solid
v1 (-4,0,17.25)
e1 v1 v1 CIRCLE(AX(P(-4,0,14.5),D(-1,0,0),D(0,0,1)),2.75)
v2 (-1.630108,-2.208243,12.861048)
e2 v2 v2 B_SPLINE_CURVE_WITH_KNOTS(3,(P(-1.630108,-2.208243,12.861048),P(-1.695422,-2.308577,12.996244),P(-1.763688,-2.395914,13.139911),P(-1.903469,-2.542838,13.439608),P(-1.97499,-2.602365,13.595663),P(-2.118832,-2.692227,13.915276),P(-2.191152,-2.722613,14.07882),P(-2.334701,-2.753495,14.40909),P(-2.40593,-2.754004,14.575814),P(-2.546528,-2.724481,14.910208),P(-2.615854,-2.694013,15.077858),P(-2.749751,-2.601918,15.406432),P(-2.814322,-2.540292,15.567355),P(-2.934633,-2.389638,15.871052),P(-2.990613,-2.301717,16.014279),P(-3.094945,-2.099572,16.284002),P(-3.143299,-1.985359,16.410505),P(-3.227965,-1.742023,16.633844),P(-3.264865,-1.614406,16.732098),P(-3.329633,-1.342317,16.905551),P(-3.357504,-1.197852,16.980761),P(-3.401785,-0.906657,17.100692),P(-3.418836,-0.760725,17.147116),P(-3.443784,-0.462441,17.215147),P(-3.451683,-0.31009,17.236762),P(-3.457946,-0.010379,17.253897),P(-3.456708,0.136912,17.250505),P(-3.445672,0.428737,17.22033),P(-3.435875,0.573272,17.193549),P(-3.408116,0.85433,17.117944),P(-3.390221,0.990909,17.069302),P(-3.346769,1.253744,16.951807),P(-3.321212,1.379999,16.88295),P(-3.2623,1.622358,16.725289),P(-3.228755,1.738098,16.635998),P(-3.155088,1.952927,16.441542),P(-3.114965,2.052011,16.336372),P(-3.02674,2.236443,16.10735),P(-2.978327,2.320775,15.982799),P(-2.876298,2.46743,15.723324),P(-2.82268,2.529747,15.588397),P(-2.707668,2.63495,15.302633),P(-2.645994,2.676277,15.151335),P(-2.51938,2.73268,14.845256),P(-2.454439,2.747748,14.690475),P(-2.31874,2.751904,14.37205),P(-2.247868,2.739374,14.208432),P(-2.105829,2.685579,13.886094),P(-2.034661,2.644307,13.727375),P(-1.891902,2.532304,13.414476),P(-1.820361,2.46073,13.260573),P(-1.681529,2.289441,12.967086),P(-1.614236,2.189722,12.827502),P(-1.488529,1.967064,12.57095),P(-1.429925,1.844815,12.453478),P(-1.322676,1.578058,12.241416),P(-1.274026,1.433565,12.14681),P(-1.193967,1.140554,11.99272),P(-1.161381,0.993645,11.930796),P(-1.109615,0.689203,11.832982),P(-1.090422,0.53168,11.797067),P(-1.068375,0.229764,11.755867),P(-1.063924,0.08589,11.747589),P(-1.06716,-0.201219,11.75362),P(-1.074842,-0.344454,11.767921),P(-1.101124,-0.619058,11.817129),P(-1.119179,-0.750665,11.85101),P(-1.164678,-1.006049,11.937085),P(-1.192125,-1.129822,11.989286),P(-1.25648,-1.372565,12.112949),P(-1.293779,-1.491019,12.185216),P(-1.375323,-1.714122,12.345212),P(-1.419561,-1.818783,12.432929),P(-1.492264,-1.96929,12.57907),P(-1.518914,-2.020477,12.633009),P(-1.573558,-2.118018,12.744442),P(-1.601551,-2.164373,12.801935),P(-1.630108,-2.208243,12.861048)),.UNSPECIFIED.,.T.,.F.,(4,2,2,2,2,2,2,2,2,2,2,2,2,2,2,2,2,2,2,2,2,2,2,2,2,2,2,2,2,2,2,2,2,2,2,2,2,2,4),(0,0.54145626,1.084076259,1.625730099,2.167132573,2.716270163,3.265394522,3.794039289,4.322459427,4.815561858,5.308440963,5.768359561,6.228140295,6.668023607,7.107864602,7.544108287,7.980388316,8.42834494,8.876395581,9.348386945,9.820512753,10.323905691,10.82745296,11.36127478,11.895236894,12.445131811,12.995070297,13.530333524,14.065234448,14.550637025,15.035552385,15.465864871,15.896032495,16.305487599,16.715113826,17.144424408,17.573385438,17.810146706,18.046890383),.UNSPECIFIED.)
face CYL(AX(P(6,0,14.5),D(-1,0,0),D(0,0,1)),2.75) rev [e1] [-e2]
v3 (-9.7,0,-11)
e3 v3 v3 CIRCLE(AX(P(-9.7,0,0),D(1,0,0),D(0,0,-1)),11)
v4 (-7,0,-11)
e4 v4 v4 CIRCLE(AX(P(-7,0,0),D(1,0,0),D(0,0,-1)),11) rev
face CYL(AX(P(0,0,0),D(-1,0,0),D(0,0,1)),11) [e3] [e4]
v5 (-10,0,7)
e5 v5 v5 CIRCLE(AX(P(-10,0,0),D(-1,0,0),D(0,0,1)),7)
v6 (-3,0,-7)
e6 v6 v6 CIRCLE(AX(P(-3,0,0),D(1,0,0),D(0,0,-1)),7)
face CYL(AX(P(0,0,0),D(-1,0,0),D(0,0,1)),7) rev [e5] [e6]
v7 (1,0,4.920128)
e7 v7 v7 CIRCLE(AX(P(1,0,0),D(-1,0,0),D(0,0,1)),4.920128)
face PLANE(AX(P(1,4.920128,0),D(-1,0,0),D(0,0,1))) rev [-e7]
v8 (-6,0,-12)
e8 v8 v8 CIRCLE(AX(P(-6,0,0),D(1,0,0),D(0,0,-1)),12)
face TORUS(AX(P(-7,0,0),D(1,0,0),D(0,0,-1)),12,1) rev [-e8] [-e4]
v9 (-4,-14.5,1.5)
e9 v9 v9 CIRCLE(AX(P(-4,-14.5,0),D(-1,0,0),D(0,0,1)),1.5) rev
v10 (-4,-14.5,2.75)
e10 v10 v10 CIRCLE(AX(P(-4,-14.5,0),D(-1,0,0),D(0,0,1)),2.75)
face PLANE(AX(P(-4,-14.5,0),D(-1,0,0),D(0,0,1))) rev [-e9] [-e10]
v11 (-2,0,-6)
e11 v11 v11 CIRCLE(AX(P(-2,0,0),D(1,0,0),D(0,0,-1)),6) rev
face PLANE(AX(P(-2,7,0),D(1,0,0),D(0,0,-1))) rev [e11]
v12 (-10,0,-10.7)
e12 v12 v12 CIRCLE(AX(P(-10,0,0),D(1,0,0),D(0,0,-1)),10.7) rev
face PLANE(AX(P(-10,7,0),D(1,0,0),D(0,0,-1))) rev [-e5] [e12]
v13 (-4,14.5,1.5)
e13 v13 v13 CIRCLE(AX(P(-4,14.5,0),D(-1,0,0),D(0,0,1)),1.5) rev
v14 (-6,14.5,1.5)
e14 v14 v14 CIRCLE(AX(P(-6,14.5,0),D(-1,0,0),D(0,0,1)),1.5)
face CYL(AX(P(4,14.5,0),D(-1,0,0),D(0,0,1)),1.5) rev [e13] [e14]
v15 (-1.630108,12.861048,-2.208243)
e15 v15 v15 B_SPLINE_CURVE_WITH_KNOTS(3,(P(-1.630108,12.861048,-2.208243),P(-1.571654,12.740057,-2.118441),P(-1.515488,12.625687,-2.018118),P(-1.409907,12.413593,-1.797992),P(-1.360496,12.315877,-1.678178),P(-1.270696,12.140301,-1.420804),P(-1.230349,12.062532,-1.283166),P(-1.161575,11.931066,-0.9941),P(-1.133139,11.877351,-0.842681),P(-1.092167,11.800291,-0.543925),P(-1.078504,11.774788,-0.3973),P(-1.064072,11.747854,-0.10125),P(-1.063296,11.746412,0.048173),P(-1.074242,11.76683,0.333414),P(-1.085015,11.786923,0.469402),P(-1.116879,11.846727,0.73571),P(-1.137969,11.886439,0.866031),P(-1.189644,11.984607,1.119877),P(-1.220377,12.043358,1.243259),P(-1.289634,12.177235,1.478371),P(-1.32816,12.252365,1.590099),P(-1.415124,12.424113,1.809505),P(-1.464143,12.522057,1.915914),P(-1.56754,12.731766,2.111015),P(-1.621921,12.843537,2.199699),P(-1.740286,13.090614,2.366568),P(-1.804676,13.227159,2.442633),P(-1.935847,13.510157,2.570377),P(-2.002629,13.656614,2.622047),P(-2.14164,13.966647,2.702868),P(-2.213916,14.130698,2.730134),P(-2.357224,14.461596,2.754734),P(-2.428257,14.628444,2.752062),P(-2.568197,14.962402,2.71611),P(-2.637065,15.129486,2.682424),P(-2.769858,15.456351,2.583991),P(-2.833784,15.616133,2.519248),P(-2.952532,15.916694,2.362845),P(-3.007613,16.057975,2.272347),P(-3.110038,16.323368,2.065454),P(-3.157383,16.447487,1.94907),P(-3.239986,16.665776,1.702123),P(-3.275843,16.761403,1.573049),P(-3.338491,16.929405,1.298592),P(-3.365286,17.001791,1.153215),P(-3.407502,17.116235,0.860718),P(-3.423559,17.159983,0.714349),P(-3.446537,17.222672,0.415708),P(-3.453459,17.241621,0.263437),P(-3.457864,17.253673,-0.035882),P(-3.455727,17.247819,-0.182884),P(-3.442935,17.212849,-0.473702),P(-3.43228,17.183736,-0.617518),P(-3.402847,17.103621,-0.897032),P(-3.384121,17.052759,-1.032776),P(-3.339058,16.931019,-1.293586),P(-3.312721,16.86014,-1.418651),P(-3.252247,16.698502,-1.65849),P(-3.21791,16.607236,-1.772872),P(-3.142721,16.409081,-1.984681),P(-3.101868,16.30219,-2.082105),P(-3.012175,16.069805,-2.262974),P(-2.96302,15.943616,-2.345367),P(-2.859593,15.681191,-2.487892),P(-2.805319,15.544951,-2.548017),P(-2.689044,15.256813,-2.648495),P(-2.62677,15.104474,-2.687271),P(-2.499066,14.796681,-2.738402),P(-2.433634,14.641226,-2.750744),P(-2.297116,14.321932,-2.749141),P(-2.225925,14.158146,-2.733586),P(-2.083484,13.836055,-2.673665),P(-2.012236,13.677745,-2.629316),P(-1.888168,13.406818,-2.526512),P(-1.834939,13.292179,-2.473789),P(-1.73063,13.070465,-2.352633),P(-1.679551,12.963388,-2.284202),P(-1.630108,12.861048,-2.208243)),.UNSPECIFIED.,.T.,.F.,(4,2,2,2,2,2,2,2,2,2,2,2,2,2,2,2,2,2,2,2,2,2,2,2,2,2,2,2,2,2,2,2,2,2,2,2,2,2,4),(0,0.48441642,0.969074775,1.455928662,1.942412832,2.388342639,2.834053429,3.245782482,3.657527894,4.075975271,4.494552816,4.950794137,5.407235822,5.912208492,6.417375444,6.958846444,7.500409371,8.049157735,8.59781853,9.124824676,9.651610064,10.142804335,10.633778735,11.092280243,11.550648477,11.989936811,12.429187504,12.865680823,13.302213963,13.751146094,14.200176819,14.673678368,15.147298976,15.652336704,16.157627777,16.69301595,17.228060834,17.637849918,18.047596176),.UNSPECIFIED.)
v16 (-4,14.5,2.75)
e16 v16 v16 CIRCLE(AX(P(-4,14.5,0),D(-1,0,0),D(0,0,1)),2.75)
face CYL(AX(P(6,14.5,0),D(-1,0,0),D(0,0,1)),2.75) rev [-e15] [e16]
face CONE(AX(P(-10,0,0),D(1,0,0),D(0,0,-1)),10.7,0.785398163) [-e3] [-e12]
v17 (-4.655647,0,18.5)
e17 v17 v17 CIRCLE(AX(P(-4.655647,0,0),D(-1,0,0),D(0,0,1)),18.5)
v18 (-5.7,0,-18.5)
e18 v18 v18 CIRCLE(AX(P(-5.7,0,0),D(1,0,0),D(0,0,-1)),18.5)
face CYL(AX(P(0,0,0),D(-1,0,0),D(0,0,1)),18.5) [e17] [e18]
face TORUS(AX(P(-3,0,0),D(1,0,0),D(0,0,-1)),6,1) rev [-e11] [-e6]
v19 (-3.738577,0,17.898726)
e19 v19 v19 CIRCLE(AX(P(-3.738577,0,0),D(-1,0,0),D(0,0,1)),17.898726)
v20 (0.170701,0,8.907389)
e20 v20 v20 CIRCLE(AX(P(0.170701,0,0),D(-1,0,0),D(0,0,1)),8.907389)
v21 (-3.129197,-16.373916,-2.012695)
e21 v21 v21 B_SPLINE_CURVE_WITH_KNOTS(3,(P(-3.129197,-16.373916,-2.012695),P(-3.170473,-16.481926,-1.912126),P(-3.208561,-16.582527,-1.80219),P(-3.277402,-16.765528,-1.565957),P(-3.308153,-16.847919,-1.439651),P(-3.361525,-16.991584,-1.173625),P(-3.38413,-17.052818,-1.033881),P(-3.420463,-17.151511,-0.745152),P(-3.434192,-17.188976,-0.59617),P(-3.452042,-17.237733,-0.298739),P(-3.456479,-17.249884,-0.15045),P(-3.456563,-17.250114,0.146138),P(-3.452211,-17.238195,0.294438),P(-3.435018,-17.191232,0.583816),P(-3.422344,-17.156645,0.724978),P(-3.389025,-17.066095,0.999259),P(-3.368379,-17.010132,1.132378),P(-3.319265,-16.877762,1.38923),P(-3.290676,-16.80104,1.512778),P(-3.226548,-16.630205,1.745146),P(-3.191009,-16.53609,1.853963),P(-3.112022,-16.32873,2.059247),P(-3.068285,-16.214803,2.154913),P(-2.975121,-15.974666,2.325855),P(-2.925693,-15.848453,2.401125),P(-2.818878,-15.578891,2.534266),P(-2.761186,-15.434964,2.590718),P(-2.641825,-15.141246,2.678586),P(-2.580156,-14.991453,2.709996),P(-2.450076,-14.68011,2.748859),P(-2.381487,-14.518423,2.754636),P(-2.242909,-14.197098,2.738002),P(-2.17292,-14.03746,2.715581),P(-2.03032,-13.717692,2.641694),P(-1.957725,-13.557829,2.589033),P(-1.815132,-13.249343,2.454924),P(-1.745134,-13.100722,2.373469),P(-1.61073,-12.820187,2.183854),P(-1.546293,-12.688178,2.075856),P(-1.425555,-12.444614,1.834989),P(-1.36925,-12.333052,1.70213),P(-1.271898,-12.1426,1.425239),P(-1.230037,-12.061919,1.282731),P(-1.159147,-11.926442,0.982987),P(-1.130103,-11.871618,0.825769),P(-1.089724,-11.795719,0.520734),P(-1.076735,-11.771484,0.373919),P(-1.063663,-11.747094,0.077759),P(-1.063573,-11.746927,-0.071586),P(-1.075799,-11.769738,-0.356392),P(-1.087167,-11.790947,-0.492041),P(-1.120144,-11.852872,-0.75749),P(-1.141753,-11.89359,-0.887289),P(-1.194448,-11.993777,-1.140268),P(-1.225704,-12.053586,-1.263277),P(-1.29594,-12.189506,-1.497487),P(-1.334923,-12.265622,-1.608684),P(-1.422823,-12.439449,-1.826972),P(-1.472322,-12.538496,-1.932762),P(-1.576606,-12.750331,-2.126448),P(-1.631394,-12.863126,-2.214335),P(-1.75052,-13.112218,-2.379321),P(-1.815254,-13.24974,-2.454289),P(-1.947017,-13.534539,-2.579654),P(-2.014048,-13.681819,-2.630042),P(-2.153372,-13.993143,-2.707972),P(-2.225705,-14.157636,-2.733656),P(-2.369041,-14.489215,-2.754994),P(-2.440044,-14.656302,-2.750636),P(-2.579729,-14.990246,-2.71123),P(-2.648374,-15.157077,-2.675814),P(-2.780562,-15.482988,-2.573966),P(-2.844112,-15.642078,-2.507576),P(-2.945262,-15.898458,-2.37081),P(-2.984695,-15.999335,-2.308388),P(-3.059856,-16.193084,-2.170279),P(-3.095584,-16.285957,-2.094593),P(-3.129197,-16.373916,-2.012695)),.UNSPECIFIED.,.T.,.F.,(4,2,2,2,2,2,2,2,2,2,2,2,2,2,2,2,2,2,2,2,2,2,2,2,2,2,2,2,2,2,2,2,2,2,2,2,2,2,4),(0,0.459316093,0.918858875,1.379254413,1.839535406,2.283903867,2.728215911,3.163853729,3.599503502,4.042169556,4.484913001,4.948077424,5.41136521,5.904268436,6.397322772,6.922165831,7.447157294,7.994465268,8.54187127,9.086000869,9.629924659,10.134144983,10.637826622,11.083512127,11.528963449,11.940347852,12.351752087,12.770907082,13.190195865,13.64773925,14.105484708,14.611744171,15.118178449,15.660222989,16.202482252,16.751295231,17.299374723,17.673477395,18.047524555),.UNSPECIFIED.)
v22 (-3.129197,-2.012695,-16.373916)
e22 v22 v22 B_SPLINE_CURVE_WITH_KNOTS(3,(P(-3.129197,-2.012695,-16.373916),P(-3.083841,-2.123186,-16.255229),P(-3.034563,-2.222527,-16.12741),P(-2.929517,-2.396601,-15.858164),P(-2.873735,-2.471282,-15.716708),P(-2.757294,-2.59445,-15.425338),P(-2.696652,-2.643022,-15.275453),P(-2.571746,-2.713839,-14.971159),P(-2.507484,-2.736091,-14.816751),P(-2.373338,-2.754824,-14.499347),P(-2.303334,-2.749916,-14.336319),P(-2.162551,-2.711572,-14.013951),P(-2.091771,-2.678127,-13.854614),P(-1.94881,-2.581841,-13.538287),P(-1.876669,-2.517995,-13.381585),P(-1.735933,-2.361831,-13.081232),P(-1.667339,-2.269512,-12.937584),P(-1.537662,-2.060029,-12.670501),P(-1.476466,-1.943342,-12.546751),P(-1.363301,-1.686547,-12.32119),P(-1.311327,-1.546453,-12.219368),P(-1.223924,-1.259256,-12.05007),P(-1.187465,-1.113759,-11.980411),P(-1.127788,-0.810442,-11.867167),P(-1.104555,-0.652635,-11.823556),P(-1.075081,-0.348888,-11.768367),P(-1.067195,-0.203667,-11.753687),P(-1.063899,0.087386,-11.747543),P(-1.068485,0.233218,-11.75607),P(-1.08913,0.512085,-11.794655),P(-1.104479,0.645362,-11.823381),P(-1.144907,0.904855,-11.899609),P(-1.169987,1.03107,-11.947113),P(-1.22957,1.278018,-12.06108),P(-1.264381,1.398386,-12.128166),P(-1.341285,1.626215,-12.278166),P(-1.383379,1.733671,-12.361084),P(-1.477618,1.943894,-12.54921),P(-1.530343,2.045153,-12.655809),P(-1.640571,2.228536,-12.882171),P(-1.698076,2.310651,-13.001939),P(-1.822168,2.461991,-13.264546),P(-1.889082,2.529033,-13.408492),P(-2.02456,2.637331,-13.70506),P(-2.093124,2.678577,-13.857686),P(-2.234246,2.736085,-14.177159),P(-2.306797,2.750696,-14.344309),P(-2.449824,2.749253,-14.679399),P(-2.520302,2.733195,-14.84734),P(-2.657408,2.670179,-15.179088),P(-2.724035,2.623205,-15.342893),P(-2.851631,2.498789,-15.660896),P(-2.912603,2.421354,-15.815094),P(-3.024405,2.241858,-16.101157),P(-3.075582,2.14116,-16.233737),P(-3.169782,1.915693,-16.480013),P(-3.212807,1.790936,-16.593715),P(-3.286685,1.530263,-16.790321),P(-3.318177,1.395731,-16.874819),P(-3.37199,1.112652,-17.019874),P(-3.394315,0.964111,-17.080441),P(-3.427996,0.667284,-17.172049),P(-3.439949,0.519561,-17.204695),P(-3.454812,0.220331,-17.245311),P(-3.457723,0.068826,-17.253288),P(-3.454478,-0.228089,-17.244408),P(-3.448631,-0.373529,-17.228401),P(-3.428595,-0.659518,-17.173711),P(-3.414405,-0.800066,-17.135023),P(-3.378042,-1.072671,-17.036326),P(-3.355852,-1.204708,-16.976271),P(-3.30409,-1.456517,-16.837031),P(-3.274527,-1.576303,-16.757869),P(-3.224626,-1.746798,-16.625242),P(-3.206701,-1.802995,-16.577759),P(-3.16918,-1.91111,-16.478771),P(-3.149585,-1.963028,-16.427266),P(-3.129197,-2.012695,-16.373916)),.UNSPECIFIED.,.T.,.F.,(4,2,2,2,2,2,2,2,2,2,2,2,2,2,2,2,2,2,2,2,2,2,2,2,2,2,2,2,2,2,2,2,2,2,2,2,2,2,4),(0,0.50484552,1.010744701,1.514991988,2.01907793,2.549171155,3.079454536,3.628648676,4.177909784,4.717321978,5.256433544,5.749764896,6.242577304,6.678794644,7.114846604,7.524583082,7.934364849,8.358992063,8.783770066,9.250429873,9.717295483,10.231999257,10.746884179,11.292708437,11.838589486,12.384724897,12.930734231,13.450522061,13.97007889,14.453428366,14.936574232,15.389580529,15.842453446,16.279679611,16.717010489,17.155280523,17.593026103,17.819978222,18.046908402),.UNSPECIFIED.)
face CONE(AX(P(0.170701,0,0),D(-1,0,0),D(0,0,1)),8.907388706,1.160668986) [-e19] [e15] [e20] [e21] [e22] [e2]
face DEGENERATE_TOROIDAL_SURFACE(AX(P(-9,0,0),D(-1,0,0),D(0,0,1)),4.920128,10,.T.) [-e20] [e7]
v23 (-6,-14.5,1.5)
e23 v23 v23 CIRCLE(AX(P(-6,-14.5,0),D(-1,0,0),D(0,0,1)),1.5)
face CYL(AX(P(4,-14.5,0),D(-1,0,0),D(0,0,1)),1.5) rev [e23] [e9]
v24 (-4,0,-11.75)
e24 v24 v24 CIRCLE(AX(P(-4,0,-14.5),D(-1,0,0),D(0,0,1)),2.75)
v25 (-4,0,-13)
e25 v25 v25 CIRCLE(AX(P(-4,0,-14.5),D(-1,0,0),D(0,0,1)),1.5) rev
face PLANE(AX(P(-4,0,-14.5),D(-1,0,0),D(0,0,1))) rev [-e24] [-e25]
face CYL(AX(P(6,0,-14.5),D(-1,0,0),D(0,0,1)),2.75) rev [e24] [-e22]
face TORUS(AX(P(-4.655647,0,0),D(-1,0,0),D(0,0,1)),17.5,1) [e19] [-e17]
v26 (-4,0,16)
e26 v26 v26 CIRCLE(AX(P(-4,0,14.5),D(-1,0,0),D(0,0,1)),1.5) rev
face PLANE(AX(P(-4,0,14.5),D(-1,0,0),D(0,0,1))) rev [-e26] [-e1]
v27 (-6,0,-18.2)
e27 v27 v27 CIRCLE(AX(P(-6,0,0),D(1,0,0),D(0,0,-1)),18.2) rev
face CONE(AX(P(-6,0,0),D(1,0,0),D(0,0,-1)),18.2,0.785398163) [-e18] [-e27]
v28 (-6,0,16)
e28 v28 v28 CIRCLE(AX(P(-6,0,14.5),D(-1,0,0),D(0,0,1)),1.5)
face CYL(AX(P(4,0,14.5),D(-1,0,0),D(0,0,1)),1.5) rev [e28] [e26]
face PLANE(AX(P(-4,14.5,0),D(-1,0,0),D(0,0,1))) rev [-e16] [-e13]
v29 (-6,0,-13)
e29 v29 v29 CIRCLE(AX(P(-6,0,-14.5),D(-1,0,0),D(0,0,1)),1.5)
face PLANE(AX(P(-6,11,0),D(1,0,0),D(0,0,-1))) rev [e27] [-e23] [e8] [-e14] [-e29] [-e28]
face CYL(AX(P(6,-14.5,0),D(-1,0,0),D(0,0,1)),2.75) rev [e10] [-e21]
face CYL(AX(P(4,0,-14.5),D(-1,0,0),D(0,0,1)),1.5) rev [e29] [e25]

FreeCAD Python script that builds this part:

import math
import FreeCAD as App
import Part
import Sketcher


def edges_at(feature, points):
    """Names of the edges that pass closest to the given points."""
    edges = feature.Shape.Edges
    near = lambda p: min(range(len(edges)), key=lambda i: edges[i].distToShape(Part.Vertex(*p))[0])
    return sorted({f"Edge{near(p) + 1}" for p in points})

doc = App.newDocument("Part")
body = doc.addObject("PartDesign::Body", "Body")

sketch1 = doc.addObject("Sketcher::SketchObject", "Sketch")
body.addObject(sketch1)
sketch1.AttachmentSupport = (doc.XY_Plane, [""])
sketch1.MapMode = "FlatFace"
sketch1.addGeometry([
    Part.LineSegment(App.Vector(-10, 11, 0), App.Vector(-10, 7, 0)),
    Part.LineSegment(App.Vector(-10, 7, 0), App.Vector(-2, 7, 0)),
    Part.LineSegment(App.Vector(-2, 7, 0), App.Vector(-2, 0, 0)),
    Part.LineSegment(App.Vector(-2, 0, 0), App.Vector(1, 0, 0)),
    Part.LineSegment(App.Vector(1, 0, 0), App.Vector(1, 4.920128, 0)),
    Part.ArcOfCircle(Part.Circle(App.Vector(-9, 4.920128, 0), App.Vector(0, 0, 1), 10), math.radians(0), math.radians(23.498566)),
    Part.LineSegment(App.Vector(0.170701, 8.907389, 0), App.Vector(-3.738577, 17.898726, 0)),
    Part.ArcOfCircle(Part.Circle(App.Vector(-4.655647, 17.5, 0), App.Vector(0, 0, 1), 1), math.radians(23.498566), math.radians(90)),
    Part.LineSegment(App.Vector(-4.655647, 18.5, 0), App.Vector(-6, 18.5, 0)),
    Part.LineSegment(App.Vector(-6, 18.5, 0), App.Vector(-6, 11, 0)),
    Part.LineSegment(App.Vector(-6, 11, 0), App.Vector(-10, 11, 0)),
], False)
sketch1.addConstraint([
    Sketcher.Constraint("Coincident", 0, 2, 1, 1),
    Sketcher.Constraint("Coincident", 1, 2, 2, 1),
    Sketcher.Constraint("Coincident", 2, 2, 3, 1),
    Sketcher.Constraint("Coincident", 3, 2, 4, 1),
    Sketcher.Constraint("Tangent", 4, 2, 5, 1),
    Sketcher.Constraint("Tangent", 5, 2, 6, 1),
    Sketcher.Constraint("Tangent", 6, 2, 7, 1),
    Sketcher.Constraint("Tangent", 7, 2, 8, 1),
    Sketcher.Constraint("Coincident", 8, 2, 9, 1),
    Sketcher.Constraint("Coincident", 9, 2, 10, 1),
    Sketcher.Constraint("Coincident", 10, 2, 0, 1),
    Sketcher.Constraint("Vertical", 0),
    Sketcher.Constraint("Horizontal", 1),
    Sketcher.Constraint("Vertical", 2),
    Sketcher.Constraint("Horizontal", 3),
    Sketcher.Constraint("Vertical", 4),
    Sketcher.Constraint("Horizontal", 8),
    Sketcher.Constraint("Vertical", 9),
    Sketcher.Constraint("Horizontal", 10),
    Sketcher.Constraint("PointOnObject", 2, 2, -1),
    Sketcher.Constraint("Equal", 10, 0),
    Sketcher.Constraint("Radius", 5, 10.0),
    Sketcher.Constraint("Radius", 7, 1.0),
    Sketcher.Constraint("DistanceX", 1, 1, 1, 2, 8.0),
    Sketcher.Constraint("DistanceX", 3, 1, 3, 2, 3.0),
    Sketcher.Constraint("DistanceX", 10, 2, 10, 1, 4.0),
    Sketcher.Constraint("DistanceY", 2, 2, 2, 1, 7.0),
    Sketcher.Constraint("DistanceY", 9, 2, 9, 1, 7.5),
    Sketcher.Constraint("DistanceX", 5, 3, -1, 1, 9.0),
    Sketcher.Constraint("DistanceX", -1, 1, 5, 2, 0.170701),
    Sketcher.Constraint("DistanceY", 4, 2, 6, 2, 12.978599),
])
revolution = doc.addObject("PartDesign::Revolution", "Revolution")
body.addObject(revolution)
revolution.Profile = sketch1
revolution.ReferenceAxis = (sketch1, ["H_Axis"])
revolution.Angle = 360
doc.recompute()

fillet = doc.addObject("PartDesign::Fillet", "Fillet")
body.addObject(fillet)
fillet.Base = (revolution, edges_at(revolution, [(-6, 0, -11), (-2, 0, -7)]))
fillet.Radius = 1
doc.recompute()

chamfer = doc.addObject("PartDesign::Chamfer", "Chamfer")
body.addObject(chamfer)
chamfer.Base = (fillet, edges_at(fillet, [(-6, 0, -18.5), (-10, 0, -11)]))
chamfer.Size = 0.3

sketch2 = doc.addObject("Sketcher::SketchObject", "Sketch001")
body.addObject(sketch2)
sketch2.AttachmentSupport = (doc.YZ_Plane, [""])
sketch2.MapMode = "FlatFace"
sketch2.AttachmentOffset = App.Placement(App.Vector(0, 0, -6), App.Rotation())
sketch2.addGeometry([
    Part.Circle(App.Vector(14.5, 0, 0), App.Vector(0, 0, 1), 1.5),
    Part.Circle(App.Vector(0, 14.5, 0), App.Vector(0, 0, 1), 1.5),
    Part.Circle(App.Vector(-14.5, 0, 0), App.Vector(0, 0, 1), 1.5),
    Part.Circle(App.Vector(0, -14.5, 0), App.Vector(0, 0, 1), 1.5),
], False)
sketch2.addConstraint([
    Sketcher.Constraint("Equal", 0, 1),
    Sketcher.Constraint("Equal", 1, 2),
    Sketcher.Constraint("Equal", 2, 3),
    Sketcher.Constraint("Symmetric", 0, 3, 2, 3, -1, 1),
    Sketcher.Constraint("Symmetric", 1, 3, 3, 3, -1, 1),
    Sketcher.Constraint("PointOnObject", 0, 3, -1),
    Sketcher.Constraint("PointOnObject", 1, 3, -2),
    Sketcher.Constraint("Diameter", 0, 3.0),
    Sketcher.Constraint("DistanceX", 2, 3, 0, 3, 29.0),
    Sketcher.Constraint("DistanceY", 3, 3, 1, 3, 29.0),
])
pocket1 = doc.addObject("PartDesign::Pocket", "Pocket")
body.addObject(pocket1)
pocket1.Profile = sketch2
pocket1.Length = 10
pocket1.Reversed = True

sketch3 = doc.addObject("Sketcher::SketchObject", "Sketch002")
body.addObject(sketch3)
sketch3.AttachmentSupport = (doc.YZ_Plane, [""])
sketch3.MapMode = "FlatFace"
sketch3.AttachmentOffset = App.Placement(App.Vector(0, 0, -4), App.Rotation())
sketch3.addGeometry([
    Part.Circle(App.Vector(14.5, 0, 0), App.Vector(0, 0, 1), 2.75),
    Part.Circle(App.Vector(0, 14.5, 0), App.Vector(0, 0, 1), 2.75),
    Part.Circle(App.Vector(-14.5, 0, 0), App.Vector(0, 0, 1), 2.75),
    Part.Circle(App.Vector(0, -14.5, 0), App.Vector(0, 0, 1), 2.75),
], False)
sketch3.addConstraint([
    Sketcher.Constraint("Equal", 0, 1),
    Sketcher.Constraint("Equal", 1, 2),
    Sketcher.Constraint("Equal", 2, 3),
    Sketcher.Constraint("Symmetric", 0, 3, 2, 3, -1, 1),
    Sketcher.Constraint("Symmetric", 1, 3, 3, 3, -1, 1),
    Sketcher.Constraint("PointOnObject", 0, 3, -1),
    Sketcher.Constraint("PointOnObject", 1, 3, -2),
    Sketcher.Constraint("Diameter", 0, 5.5),
    Sketcher.Constraint("DistanceX", 2, 3, 0, 3, 29.0),
    Sketcher.Constraint("DistanceY", 3, 3, 1, 3, 29.0),
])
pocket2 = doc.addObject("PartDesign::Pocket", "Pocket001")
body.addObject(pocket2)
pocket2.Profile = sketch3
pocket2.Length = 10
pocket2.Reversed = True

doc.recompute()
